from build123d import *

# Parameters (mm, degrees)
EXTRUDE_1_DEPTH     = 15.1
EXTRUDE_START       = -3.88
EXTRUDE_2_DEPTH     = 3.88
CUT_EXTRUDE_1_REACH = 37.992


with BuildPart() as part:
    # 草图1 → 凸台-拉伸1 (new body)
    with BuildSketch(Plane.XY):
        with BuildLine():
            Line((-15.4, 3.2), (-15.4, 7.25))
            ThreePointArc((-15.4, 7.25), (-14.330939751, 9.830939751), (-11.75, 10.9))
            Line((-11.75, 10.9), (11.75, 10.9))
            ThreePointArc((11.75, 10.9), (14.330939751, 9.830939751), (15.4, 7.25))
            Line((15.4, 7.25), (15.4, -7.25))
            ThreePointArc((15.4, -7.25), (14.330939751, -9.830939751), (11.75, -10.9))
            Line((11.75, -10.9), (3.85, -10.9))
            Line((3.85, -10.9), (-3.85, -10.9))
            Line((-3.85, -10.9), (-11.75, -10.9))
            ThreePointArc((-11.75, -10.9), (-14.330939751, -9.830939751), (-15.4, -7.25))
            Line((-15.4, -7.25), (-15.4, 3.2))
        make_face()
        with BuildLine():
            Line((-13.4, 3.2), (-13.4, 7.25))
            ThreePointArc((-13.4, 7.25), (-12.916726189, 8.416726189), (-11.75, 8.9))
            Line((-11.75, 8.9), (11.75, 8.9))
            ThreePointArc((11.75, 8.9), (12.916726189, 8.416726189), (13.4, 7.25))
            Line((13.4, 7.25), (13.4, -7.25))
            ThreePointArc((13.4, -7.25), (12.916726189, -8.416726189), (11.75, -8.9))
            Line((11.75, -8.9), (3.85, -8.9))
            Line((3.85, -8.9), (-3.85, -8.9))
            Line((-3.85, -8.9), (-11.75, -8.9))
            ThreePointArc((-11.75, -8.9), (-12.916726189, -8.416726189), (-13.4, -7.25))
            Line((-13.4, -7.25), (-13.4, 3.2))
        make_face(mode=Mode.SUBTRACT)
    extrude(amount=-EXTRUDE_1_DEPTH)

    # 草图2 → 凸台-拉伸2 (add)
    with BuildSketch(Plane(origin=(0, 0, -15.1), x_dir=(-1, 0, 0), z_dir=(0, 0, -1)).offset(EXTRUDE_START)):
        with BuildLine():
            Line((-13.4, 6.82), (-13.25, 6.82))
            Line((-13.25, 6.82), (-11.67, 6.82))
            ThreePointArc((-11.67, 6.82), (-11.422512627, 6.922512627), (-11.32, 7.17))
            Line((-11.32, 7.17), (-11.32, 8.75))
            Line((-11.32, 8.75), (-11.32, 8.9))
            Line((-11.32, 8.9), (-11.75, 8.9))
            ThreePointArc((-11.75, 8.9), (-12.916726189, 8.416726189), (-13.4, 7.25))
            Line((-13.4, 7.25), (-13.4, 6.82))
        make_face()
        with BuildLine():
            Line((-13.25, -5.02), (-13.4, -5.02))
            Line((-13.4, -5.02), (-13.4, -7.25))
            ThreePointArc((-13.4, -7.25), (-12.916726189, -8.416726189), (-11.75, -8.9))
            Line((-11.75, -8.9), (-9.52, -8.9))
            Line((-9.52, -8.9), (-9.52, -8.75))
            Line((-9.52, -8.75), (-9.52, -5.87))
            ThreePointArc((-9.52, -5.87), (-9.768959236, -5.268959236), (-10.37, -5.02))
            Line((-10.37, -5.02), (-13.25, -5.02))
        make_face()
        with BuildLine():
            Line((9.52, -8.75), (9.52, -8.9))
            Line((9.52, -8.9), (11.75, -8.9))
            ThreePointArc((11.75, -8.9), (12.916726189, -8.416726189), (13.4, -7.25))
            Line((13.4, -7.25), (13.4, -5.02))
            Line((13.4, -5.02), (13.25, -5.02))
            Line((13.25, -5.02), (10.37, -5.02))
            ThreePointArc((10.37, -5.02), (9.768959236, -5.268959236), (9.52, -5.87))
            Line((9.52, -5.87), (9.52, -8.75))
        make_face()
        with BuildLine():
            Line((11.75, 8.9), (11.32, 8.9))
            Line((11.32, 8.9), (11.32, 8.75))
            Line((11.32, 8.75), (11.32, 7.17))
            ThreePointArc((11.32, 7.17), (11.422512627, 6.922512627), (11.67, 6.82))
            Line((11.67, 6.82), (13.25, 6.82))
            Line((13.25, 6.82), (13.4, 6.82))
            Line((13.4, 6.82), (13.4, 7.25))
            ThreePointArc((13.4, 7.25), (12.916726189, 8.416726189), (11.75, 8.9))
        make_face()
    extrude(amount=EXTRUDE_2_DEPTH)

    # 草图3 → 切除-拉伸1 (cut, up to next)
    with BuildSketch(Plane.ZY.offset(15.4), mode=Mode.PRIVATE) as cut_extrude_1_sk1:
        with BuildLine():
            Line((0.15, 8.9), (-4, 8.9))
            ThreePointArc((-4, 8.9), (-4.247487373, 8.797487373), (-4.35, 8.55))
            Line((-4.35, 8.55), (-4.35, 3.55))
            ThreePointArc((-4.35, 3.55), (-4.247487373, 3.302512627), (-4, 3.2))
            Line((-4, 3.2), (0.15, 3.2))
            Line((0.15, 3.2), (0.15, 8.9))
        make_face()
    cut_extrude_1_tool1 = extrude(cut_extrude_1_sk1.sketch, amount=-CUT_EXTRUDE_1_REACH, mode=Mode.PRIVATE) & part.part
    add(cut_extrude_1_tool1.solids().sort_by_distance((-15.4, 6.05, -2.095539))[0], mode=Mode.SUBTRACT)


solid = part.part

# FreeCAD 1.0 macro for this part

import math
import FreeCAD as App
import Part
import Sketcher

V = App.Vector

doc = App.newDocument("Part")
params = doc.addObject("Spreadsheet::Sheet", "Params")
for row, (alias, value) in enumerate([
    ("sketch1_radius", "3.65 mm"),
    ("sketch1_radius2", "1.65 mm"),
    ("sketch1_width", "23.5 mm"),
    ("sketch1_height", "14.5 mm"),
    ("pad1_length", "15.1 mm"),
    ("sketch2_radius", "0.35 mm"),
    ("sketch2_radius2", "1.65 mm"),
    ("sketch2_radius3", "0.85 mm"),
    ("sketch2_width", "1.73 mm"),
    ("sketch2_width2", "2.23 mm"),
    ("pad2_length", "3.88 mm"),
    ("sketch3_width", "5 mm"),
    ("sketch3_radius", "0.35 mm"),
    ("sketch3_height", "4.15 mm"),
    ("pocket1_length", "3.65 mm"),
], start=1):
    params.set(f"A{row}", alias)
    params.set(f"B{row}", "=" + value)
    params.setAlias(f"B{row}", alias)

body = doc.addObject("PartDesign::Body", "Body")

sketch1 = body.newObject("Sketcher::SketchObject", "Sketch")
sketch1.AttachmentSupport = (doc.getObject("XY_Plane"), [""])
sketch1.MapMode = "FlatFace"
sketch1.addGeometry([
    Part.ArcOfCircle(Part.Circle(V(-11.75, 7.25, 0), V(0, 0, 1), 3.65), math.radians(90), math.radians(180)),
    Part.LineSegment(V(-15.4, 7.25, 0), V(-15.4, -7.25, 0)),
    Part.ArcOfCircle(Part.Circle(V(-11.75, -7.25, 0), V(0, 0, 1), 3.65), math.radians(-180), math.radians(-90)),
    Part.LineSegment(V(-11.75, -10.9, 0), V(11.75, -10.9, 0)),
    Part.ArcOfCircle(Part.Circle(V(11.75, -7.25, 0), V(0, 0, 1), 3.65), math.radians(-90), math.radians(0)),
    Part.LineSegment(V(15.4, -7.25, 0), V(15.4, 7.25, 0)),
    Part.ArcOfCircle(Part.Circle(V(11.75, 7.25, 0), V(0, 0, 1), 3.65), math.radians(0), math.radians(90)),
    Part.LineSegment(V(11.75, 10.9, 0), V(-11.75, 10.9, 0)),
    Part.ArcOfCircle(Part.Circle(V(-11.75, 7.25, 0), V(0, 0, 1), 1.65), math.radians(90), math.radians(180)),
    Part.LineSegment(V(-11.75, 8.9, 0), V(11.75, 8.9, 0)),
    Part.ArcOfCircle(Part.Circle(V(11.75, 7.25, 0), V(0, 0, 1), 1.65), math.radians(0), math.radians(90)),
    Part.LineSegment(V(13.4, 7.25, 0), V(13.4, -7.25, 0)),
    Part.ArcOfCircle(Part.Circle(V(11.75, -7.25, 0), V(0, 0, 1), 1.65), math.radians(-90), math.radians(0)),
    Part.LineSegment(V(11.75, -8.9, 0), V(-11.75, -8.9, 0)),
    Part.ArcOfCircle(Part.Circle(V(-11.75, -7.25, 0), V(0, 0, 1), 1.65), math.radians(180), math.radians(270)),
    Part.LineSegment(V(-13.4, -7.25, 0), V(-13.4, 7.25, 0)),
], False)
sketch1.addConstraint([
    Sketcher.Constraint("Tangent", 0, 2, 1, 1),
    Sketcher.Constraint("Tangent", 1, 2, 2, 1),
    Sketcher.Constraint("Tangent", 2, 2, 3, 1),
    Sketcher.Constraint("Tangent", 3, 2, 4, 1),
    Sketcher.Constraint("Tangent", 4, 2, 5, 1),
    Sketcher.Constraint("Tangent", 5, 2, 6, 1),
    Sketcher.Constraint("Tangent", 6, 2, 7, 1),
    Sketcher.Constraint("Tangent", 7, 2, 0, 1),
    Sketcher.Constraint("Tangent", 8, 1, 9, 1),
    Sketcher.Constraint("Tangent", 9, 2, 10, 2),
    Sketcher.Constraint("Tangent", 10, 1, 11, 1),
    Sketcher.Constraint("Tangent", 11, 2, 12, 2),
    Sketcher.Constraint("Tangent", 12, 1, 13, 1),
    Sketcher.Constraint("Tangent", 13, 2, 14, 2),
    Sketcher.Constraint("Tangent", 14, 1, 15, 1),
    Sketcher.Constraint("Tangent", 15, 2, 8, 2),
    Sketcher.Constraint("Vertical", 1),
    Sketcher.Constraint("Horizontal", 3),
    Sketcher.Constraint("Vertical", 5),
    Sketcher.Constraint("Horizontal", 7),
    Sketcher.Constraint("Horizontal", 9),
    Sketcher.Constraint("Vertical", 11),
    Sketcher.Constraint("Horizontal", 13),
    Sketcher.Constraint("Vertical", 15),
    Sketcher.Constraint("Coincident", 8, 3, 0, 3),
    Sketcher.Constraint("Coincident", 10, 3, 6, 3),
    Sketcher.Constraint("Coincident", 12, 3, 4, 3),
    Sketcher.Constraint("Equal", 0, 2),
    Sketcher.Constraint("Equal", 2, 4),
    Sketcher.Constraint("Equal", 4, 6),
    Sketcher.Constraint("Equal", 12, 14),
    Sketcher.Constraint("Symmetric", 0, 3, 4, 3, -1, 1),
    Sketcher.Constraint("Radius", 0, 3.65),
    Sketcher.Constraint("Radius", 8, 1.65),
    Sketcher.Constraint("DistanceX", 3, 1, 3, 2, 23.5),
    Sketcher.Constraint("DistanceY", 1, 2, 1, 1, 14.5),
])
sketch1.setExpression("Constraints[32]", "Params.sketch1_radius")
sketch1.setExpression("Constraints[33]", "Params.sketch1_radius2")
sketch1.setExpression("Constraints[34]", "Params.sketch1_width")
sketch1.setExpression("Constraints[35]", "Params.sketch1_height")
pad1 = body.newObject("PartDesign::Pad", "Pad")
pad1.Profile = sketch1
pad1.setExpression("Length", "Params.pad1_length")
pad1.Reversed = True

sketch2 = body.newObject("Sketcher::SketchObject", "Sketch001")
sketch2.AttachmentSupport = (doc.getObject("XY_Plane"), [""])
sketch2.MapMode = "FlatFace"
sketch2.AttachmentOffset = App.Placement(V(0, 0, -11.22), App.Rotation())
sketch2.addGeometry([
    Part.LineSegment(V(13.4, 6.82, 0), V(11.67, 6.82, 0)),
    Part.ArcOfCircle(Part.Circle(V(11.67, 7.17, 0), V(0, 0, 1), 0.35), math.radians(-180), math.radians(-90)),
    Part.LineSegment(V(11.32, 7.17, 0), V(11.32, 8.9, 0)),
    Part.LineSegment(V(11.32, 8.9, 0), V(11.75, 8.9, 0)),
    Part.ArcOfCircle(Part.Circle(V(11.75, 7.25, 0), V(0, 0, 1), 1.65), math.radians(0), math.radians(90)),
    Part.LineSegment(V(13.4, 7.25, 0), V(13.4, 6.82, 0)),
    Part.LineSegment(V(13.4, -5.02, 0), V(13.4, -7.25, 0)),
    Part.ArcOfCircle(Part.Circle(V(11.75, -7.25, 0), V(0, 0, 1), 1.65), math.radians(-90), math.radians(0)),
    Part.LineSegment(V(11.75, -8.9, 0), V(9.52, -8.9, 0)),
    Part.LineSegment(V(9.52, -8.9, 0), V(9.52, -5.87, 0)),
    Part.ArcOfCircle(Part.Circle(V(10.37, -5.87, 0), V(0, 0, 1), 0.85), math.radians(90), math.radians(180)),
    Part.LineSegment(V(10.37, -5.02, 0), V(13.4, -5.02, 0)),
    Part.LineSegment(V(-9.52, -8.9, 0), V(-11.75, -8.9, 0)),
    Part.ArcOfCircle(Part.Circle(V(-11.75, -7.25, 0), V(0, 0, 1), 1.65), math.radians(180), math.radians(270)),
    Part.LineSegment(V(-13.4, -7.25, 0), V(-13.4, -5.02, 0)),
    Part.LineSegment(V(-13.4, -5.02, 0), V(-10.37, -5.02, 0)),
    Part.ArcOfCircle(Part.Circle(V(-10.37, -5.87, 0), V(0, 0, 1), 0.85), math.radians(0), math.radians(90)),
    Part.LineSegment(V(-9.52, -5.87, 0), V(-9.52, -8.9, 0)),
    Part.LineSegment(V(-11.75, 8.9, 0), V(-11.32, 8.9, 0)),
    Part.LineSegment(V(-11.32, 8.9, 0), V(-11.32, 7.17, 0)),
    Part.ArcOfCircle(Part.Circle(V(-11.67, 7.17, 0), V(0, 0, 1), 0.35), math.radians(-90), math.radians(0)),
    Part.LineSegment(V(-11.67, 6.82, 0), V(-13.4, 6.82, 0)),
    Part.LineSegment(V(-13.4, 6.82, 0), V(-13.4, 7.25, 0)),
    Part.ArcOfCircle(Part.Circle(V(-11.75, 7.25, 0), V(0, 0, 1), 1.65), math.radians(90), math.radians(180)),
], False)
sketch2.addConstraint([
    Sketcher.Constraint("Tangent", 0, 2, 1, 2),
    Sketcher.Constraint("Tangent", 1, 1, 2, 1),
    Sketcher.Constraint("Coincident", 2, 2, 3, 1),
    Sketcher.Constraint("Tangent", 3, 2, 4, 2),
    Sketcher.Constraint("Tangent", 4, 1, 5, 1),
    Sketcher.Constraint("Coincident", 5, 2, 0, 1),
    Sketcher.Constraint("Tangent", 6, 2, 7, 2),
    Sketcher.Constraint("Tangent", 7, 1, 8, 1),
    Sketcher.Constraint("Coincident", 8, 2, 9, 1),
    Sketcher.Constraint("Tangent", 9, 2, 10, 2),
    Sketcher.Constraint("Tangent", 10, 1, 11, 1),
    Sketcher.Constraint("Coincident", 11, 2, 6, 1),
    Sketcher.Constraint("Tangent", 12, 2, 13, 2),
    Sketcher.Constraint("Tangent", 13, 1, 14, 1),
    Sketcher.Constraint("Coincident", 14, 2, 15, 1),
    Sketcher.Constraint("Tangent", 15, 2, 16, 2),
    Sketcher.Constraint("Tangent", 16, 1, 17, 1),
    Sketcher.Constraint("Coincident", 17, 2, 12, 1),
    Sketcher.Constraint("Coincident", 18, 2, 19, 1),
    Sketcher.Constraint("Tangent", 19, 2, 20, 2),
    Sketcher.Constraint("Tangent", 20, 1, 21, 1),
    Sketcher.Constraint("Coincident", 21, 2, 22, 1),
    Sketcher.Constraint("Tangent", 22, 2, 23, 2),
    Sketcher.Constraint("Tangent", 23, 1, 18, 1),
    Sketcher.Constraint("Horizontal", 0),
    Sketcher.Constraint("Vertical", 2),
    Sketcher.Constraint("Horizontal", 3),
    Sketcher.Constraint("Vertical", 5),
    Sketcher.Constraint("Vertical", 6),
    Sketcher.Constraint("Horizontal", 8),
    Sketcher.Constraint("Vertical", 9),
    Sketcher.Constraint("Horizontal", 11),
    Sketcher.Constraint("Horizontal", 12),
    Sketcher.Constraint("Vertical", 14),
    Sketcher.Constraint("Horizontal", 15),
    Sketcher.Constraint("Vertical", 17),
    Sketcher.Constraint("Horizontal", 18),
    Sketcher.Constraint("Vertical", 19),
    Sketcher.Constraint("Horizontal", 21),
    Sketcher.Constraint("Vertical", 22),
    Sketcher.Constraint("Equal", 4, 7),
    Sketcher.Constraint("Equal", 7, 13),
    Sketcher.Constraint("Equal", 10, 16),
    Sketcher.Constraint("Equal", 1, 20),
    Sketcher.Constraint("Equal", 13, 23),
    Sketcher.Constraint("Symmetric", 4, 3, 13, 3, -1, 1),
    Sketcher.Constraint("Symmetric", 7, 3, 23, 3, -1, 1),
    Sketcher.Constraint("Symmetric", 7, 3, 13, 3, -2),
    Sketcher.Constraint("Symmetric", 10, 3, 16, 3, -2),
    Sketcher.Constraint("Symmetric", 1, 3, 20, 3, -2),
    Sketcher.Constraint("Equal", 21, 2),
    Sketcher.Constraint("Equal", 12, 6),
    Sketcher.Constraint("Radius", 1, 0.35),
    Sketcher.Constraint("Radius", 4, 1.65),
    Sketcher.Constraint("Radius", 10, 0.85),
    Sketcher.Constraint("DistanceX", 0, 2, 0, 1, 1.73),
    Sketcher.Constraint("DistanceX", 8, 2, 8, 1, 2.23),
    Sketcher.Constraint("DistanceY", -1, 1, 2, 2, 8.9),
    Sketcher.Constraint("DistanceX", -1, 1, 4, 1, 13.4),
])
sketch2.setExpression("Constraints[52]", "Params.sketch2_radius")
sketch2.setExpression("Constraints[53]", "Params.sketch2_radius2")
sketch2.setExpression("Constraints[54]", "Params.sketch2_radius3")
sketch2.setExpression("Constraints[55]", "Params.sketch2_width")
sketch2.setExpression("Constraints[56]", "Params.sketch2_width2")
pad2 = body.newObject("PartDesign::Pad", "Pad001")
pad2.Profile = sketch2
pad2.setExpression("Length", "Params.pad2_length")
pad2.Reversed = True

sketch3 = body.newObject("Sketcher::SketchObject", "Sketch002")
sketch3.AttachmentSupport = (doc.getObject("YZ_Plane"), [""])
sketch3.MapMode = "FlatFace"
sketch3.AttachmentOffset = App.Placement(V(0, 0, -15.4), App.Rotation())
sketch3.addGeometry([
    Part.LineSegment(V(8.9, 0.15, 0), V(8.9, -4, 0)),
    Part.ArcOfCircle(Part.Circle(V(8.55, -4, 0), V(0, 0, 1), 0.35), math.radians(-90), math.radians(0)),
    Part.LineSegment(V(8.55, -4.35, 0), V(3.55, -4.35, 0)),
    Part.ArcOfCircle(Part.Circle(V(3.55, -4, 0), V(0, 0, 1), 0.35), math.radians(-180), math.radians(-90)),
    Part.LineSegment(V(3.2, -4, 0), V(3.2, 0.15, 0)),
    Part.LineSegment(V(3.2, 0.15, 0), V(8.9, 0.15, 0)),
], False)
sketch3.addConstraint([
    Sketcher.Constraint("Tangent", 0, 2, 1, 2),
    Sketcher.Constraint("Tangent", 1, 1, 2, 1),
    Sketcher.Constraint("Tangent", 2, 2, 3, 2),
    Sketcher.Constraint("Tangent", 3, 1, 4, 1),
    Sketcher.Constraint("Coincident", 4, 2, 5, 1),
    Sketcher.Constraint("Coincident", 5, 2, 0, 1),
    Sketcher.Constraint("Vertical", 0),
    Sketcher.Constraint("Horizontal", 2),
    Sketcher.Constraint("Vertical", 4),
    Sketcher.Constraint("Horizontal", 5),
    Sketcher.Constraint("Equal", 1, 3),
    Sketcher.Constraint("DistanceX", 2, 2, 2, 1, 5.0),
    Sketcher.Constraint("Radius", 1, 0.35),
    Sketcher.Constraint("DistanceY", 1, 3, -1, 1, 4.0),
    Sketcher.Constraint("DistanceY", 0, 2, 0, 1, 4.15),
    Sketcher.Constraint("DistanceX", -1, 1, 0, 2, 8.9),
])
sketch3.setExpression("Constraints[11]", "Params.sketch3_width")
sketch3.setExpression("Constraints[12]", "Params.sketch3_radius")
sketch3.setExpression("Constraints[14]", "Params.sketch3_height")
pocket1 = body.newObject("PartDesign::Pocket", "Pocket")
pocket1.Profile = sketch3
pocket1.setExpression("Length", "Params.pocket1_length")
pocket1.Reversed = True

doc.recompute()
